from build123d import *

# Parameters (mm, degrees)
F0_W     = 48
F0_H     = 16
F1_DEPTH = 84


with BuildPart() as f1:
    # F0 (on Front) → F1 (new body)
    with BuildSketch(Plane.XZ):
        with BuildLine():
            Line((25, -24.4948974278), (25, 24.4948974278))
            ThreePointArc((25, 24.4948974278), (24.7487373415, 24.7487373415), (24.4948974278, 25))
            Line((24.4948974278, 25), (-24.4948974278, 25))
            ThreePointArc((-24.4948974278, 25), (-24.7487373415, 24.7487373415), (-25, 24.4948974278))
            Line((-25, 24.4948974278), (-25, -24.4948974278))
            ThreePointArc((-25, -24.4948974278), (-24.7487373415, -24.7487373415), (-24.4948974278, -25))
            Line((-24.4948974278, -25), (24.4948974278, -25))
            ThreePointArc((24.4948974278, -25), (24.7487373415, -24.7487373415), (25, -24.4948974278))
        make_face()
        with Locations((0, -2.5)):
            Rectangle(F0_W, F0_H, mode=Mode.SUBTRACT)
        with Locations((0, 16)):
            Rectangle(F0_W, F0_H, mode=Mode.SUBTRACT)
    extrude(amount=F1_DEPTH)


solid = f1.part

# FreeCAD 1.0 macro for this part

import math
import FreeCAD as App
import Part
import Sketcher


def add_polygon(sketch, points):
    """Adds a closed chain of lines whose ends are joined by coincident constraints."""
    first, n = sketch.GeometryCount, len(points)
    for a, b in zip(points, points[1:] + points[:1]):
        sketch.addGeometry(Part.LineSegment(App.Vector(*a, 0), App.Vector(*b, 0)), False)
    for i in range(n):
        sketch.addConstraint(Sketcher.Constraint("Coincident", first + i, 2, first + (i + 1) % n, 1))

doc = App.newDocument("Part")
body = doc.addObject("PartDesign::Body", "Body")

# Sketch on XZ plane
sketch1 = body.newObject("Sketcher::SketchObject", "Sketch")
sketch1.AttachmentSupport = (doc.getObject("XZ_Plane"), [""])
sketch1.MapMode = "FlatFace"
sketch1.addGeometry(Part.LineSegment(App.Vector(25, -24.5, 0), App.Vector(25, 24.5, 0)), False)  # 0
sketch1.addGeometry(Part.ArcOfCircle(Part.Circle(App.Vector(0, 0, 0), App.Vector(0, 0, 1), 35), math.radians(44.42), math.radians(45.58)), False)  # 1
sketch1.addGeometry(Part.LineSegment(App.Vector(24.5, 25, 0), App.Vector(-24.5, 25, 0)), False)  # 2
sketch1.addGeometry(Part.ArcOfCircle(Part.Circle(App.Vector(0, 0, 0), App.Vector(0, 0, 1), 35), math.radians(134.42), math.radians(135.58)), False)  # 3
sketch1.addGeometry(Part.LineSegment(App.Vector(-25, 24.5, 0), App.Vector(-25, -24.5, 0)), False)  # 4
sketch1.addGeometry(Part.ArcOfCircle(Part.Circle(App.Vector(0, 0, 0), App.Vector(0, 0, 1), 35), math.radians(-135.58), math.radians(-134.42)), False)  # 5
sketch1.addGeometry(Part.LineSegment(App.Vector(-24.5, -25, 0), App.Vector(24.5, -25, 0)), False)  # 6
sketch1.addGeometry(Part.ArcOfCircle(Part.Circle(App.Vector(0, 0, 0), App.Vector(0, 0, 1), 35), math.radians(-45.58), math.radians(-44.42)), False)  # 7
add_polygon(sketch1, [(24, -10.5), (-24, -10.5), (-24, 5.5), (24, 5.5)])  # lines 8-11
add_polygon(sketch1, [(24, 8), (-24, 8), (-24, 24), (24, 24)])  # lines 12-15
sketch1.addConstraint(Sketcher.Constraint("Coincident", 0, 2, 1, 1))
sketch1.addConstraint(Sketcher.Constraint("Coincident", 1, 2, 2, 1))
sketch1.addConstraint(Sketcher.Constraint("Coincident", 2, 2, 3, 1))
sketch1.addConstraint(Sketcher.Constraint("Coincident", 3, 2, 4, 1))
sketch1.addConstraint(Sketcher.Constraint("Coincident", 4, 2, 5, 1))
sketch1.addConstraint(Sketcher.Constraint("Coincident", 5, 2, 6, 1))
sketch1.addConstraint(Sketcher.Constraint("Coincident", 6, 2, 7, 1))
sketch1.addConstraint(Sketcher.Constraint("Coincident", 7, 2, 0, 1))
sketch1.addConstraint(Sketcher.Constraint("Vertical", 0))
sketch1.addConstraint(Sketcher.Constraint("Horizontal", 2))
sketch1.addConstraint(Sketcher.Constraint("Vertical", 4))
sketch1.addConstraint(Sketcher.Constraint("Horizontal", 6))
sketch1.addConstraint(Sketcher.Constraint("Horizontal", 8))
sketch1.addConstraint(Sketcher.Constraint("Vertical", 9))
sketch1.addConstraint(Sketcher.Constraint("Horizontal", 10))
sketch1.addConstraint(Sketcher.Constraint("Vertical", 11))
sketch1.addConstraint(Sketcher.Constraint("Horizontal", 12))
sketch1.addConstraint(Sketcher.Constraint("Vertical", 13))
sketch1.addConstraint(Sketcher.Constraint("Horizontal", 14))
sketch1.addConstraint(Sketcher.Constraint("Vertical", 15))
sketch1.addConstraint(Sketcher.Constraint("Coincident", 1, 3, -1, 1))
sketch1.addConstraint(Sketcher.Constraint("Coincident", 3, 3, -1, 1))
sketch1.addConstraint(Sketcher.Constraint("Coincident", 5, 3, -1, 1))
sketch1.addConstraint(Sketcher.Constraint("Coincident", 7, 3, -1, 1))
sketch1.addConstraint(Sketcher.Constraint("Equal", 1, 3))
sketch1.addConstraint(Sketcher.Constraint("Equal", 3, 5))
sketch1.addConstraint(Sketcher.Constraint("Equal", 5, 7))
sketch1.addConstraint(Sketcher.Constraint("Horizontal", 0, 2, 3, 2))
sketch1.addConstraint(Sketcher.Constraint("Vertical", 2, 2, 5, 2))
sketch1.addConstraint(Sketcher.Constraint("Vertical", 9, 2, 12, 2))
sketch1.addConstraint(Sketcher.Constraint("Vertical", 11, 2, 14, 2))
sketch1.addConstraint(Sketcher.Constraint("Equal", 6, 0))
sketch1.addConstraint(Sketcher.Constraint("Equal", 11, 13))
sketch1.addConstraint(Sketcher.Constraint("Radius", 1, 35.0))
sketch1.addConstraint(Sketcher.Constraint("DistanceX", 8, 2, 8, 1, 48.0))
sketch1.addConstraint(Sketcher.Constraint("DistanceY", 9, 1, 9, 2, 16.0))
sketch1.addConstraint(Sketcher.Constraint("DistanceX", -1, 1, 0, 2, 25.0))
sketch1.addConstraint(Sketcher.Constraint("DistanceX", 8, 2, -1, 1, 24.0))
sketch1.addConstraint(Sketcher.Constraint("DistanceY", -1, 1, 12, 2, 8.0))
sketch1.addConstraint(Sketcher.Constraint("DistanceY", 8, 2, -1, 1, 10.5))
pad1 = body.newObject("PartDesign::Pad", "Pad")
pad1.Profile = sketch1
pad1.Length = 84

doc.recompute()
